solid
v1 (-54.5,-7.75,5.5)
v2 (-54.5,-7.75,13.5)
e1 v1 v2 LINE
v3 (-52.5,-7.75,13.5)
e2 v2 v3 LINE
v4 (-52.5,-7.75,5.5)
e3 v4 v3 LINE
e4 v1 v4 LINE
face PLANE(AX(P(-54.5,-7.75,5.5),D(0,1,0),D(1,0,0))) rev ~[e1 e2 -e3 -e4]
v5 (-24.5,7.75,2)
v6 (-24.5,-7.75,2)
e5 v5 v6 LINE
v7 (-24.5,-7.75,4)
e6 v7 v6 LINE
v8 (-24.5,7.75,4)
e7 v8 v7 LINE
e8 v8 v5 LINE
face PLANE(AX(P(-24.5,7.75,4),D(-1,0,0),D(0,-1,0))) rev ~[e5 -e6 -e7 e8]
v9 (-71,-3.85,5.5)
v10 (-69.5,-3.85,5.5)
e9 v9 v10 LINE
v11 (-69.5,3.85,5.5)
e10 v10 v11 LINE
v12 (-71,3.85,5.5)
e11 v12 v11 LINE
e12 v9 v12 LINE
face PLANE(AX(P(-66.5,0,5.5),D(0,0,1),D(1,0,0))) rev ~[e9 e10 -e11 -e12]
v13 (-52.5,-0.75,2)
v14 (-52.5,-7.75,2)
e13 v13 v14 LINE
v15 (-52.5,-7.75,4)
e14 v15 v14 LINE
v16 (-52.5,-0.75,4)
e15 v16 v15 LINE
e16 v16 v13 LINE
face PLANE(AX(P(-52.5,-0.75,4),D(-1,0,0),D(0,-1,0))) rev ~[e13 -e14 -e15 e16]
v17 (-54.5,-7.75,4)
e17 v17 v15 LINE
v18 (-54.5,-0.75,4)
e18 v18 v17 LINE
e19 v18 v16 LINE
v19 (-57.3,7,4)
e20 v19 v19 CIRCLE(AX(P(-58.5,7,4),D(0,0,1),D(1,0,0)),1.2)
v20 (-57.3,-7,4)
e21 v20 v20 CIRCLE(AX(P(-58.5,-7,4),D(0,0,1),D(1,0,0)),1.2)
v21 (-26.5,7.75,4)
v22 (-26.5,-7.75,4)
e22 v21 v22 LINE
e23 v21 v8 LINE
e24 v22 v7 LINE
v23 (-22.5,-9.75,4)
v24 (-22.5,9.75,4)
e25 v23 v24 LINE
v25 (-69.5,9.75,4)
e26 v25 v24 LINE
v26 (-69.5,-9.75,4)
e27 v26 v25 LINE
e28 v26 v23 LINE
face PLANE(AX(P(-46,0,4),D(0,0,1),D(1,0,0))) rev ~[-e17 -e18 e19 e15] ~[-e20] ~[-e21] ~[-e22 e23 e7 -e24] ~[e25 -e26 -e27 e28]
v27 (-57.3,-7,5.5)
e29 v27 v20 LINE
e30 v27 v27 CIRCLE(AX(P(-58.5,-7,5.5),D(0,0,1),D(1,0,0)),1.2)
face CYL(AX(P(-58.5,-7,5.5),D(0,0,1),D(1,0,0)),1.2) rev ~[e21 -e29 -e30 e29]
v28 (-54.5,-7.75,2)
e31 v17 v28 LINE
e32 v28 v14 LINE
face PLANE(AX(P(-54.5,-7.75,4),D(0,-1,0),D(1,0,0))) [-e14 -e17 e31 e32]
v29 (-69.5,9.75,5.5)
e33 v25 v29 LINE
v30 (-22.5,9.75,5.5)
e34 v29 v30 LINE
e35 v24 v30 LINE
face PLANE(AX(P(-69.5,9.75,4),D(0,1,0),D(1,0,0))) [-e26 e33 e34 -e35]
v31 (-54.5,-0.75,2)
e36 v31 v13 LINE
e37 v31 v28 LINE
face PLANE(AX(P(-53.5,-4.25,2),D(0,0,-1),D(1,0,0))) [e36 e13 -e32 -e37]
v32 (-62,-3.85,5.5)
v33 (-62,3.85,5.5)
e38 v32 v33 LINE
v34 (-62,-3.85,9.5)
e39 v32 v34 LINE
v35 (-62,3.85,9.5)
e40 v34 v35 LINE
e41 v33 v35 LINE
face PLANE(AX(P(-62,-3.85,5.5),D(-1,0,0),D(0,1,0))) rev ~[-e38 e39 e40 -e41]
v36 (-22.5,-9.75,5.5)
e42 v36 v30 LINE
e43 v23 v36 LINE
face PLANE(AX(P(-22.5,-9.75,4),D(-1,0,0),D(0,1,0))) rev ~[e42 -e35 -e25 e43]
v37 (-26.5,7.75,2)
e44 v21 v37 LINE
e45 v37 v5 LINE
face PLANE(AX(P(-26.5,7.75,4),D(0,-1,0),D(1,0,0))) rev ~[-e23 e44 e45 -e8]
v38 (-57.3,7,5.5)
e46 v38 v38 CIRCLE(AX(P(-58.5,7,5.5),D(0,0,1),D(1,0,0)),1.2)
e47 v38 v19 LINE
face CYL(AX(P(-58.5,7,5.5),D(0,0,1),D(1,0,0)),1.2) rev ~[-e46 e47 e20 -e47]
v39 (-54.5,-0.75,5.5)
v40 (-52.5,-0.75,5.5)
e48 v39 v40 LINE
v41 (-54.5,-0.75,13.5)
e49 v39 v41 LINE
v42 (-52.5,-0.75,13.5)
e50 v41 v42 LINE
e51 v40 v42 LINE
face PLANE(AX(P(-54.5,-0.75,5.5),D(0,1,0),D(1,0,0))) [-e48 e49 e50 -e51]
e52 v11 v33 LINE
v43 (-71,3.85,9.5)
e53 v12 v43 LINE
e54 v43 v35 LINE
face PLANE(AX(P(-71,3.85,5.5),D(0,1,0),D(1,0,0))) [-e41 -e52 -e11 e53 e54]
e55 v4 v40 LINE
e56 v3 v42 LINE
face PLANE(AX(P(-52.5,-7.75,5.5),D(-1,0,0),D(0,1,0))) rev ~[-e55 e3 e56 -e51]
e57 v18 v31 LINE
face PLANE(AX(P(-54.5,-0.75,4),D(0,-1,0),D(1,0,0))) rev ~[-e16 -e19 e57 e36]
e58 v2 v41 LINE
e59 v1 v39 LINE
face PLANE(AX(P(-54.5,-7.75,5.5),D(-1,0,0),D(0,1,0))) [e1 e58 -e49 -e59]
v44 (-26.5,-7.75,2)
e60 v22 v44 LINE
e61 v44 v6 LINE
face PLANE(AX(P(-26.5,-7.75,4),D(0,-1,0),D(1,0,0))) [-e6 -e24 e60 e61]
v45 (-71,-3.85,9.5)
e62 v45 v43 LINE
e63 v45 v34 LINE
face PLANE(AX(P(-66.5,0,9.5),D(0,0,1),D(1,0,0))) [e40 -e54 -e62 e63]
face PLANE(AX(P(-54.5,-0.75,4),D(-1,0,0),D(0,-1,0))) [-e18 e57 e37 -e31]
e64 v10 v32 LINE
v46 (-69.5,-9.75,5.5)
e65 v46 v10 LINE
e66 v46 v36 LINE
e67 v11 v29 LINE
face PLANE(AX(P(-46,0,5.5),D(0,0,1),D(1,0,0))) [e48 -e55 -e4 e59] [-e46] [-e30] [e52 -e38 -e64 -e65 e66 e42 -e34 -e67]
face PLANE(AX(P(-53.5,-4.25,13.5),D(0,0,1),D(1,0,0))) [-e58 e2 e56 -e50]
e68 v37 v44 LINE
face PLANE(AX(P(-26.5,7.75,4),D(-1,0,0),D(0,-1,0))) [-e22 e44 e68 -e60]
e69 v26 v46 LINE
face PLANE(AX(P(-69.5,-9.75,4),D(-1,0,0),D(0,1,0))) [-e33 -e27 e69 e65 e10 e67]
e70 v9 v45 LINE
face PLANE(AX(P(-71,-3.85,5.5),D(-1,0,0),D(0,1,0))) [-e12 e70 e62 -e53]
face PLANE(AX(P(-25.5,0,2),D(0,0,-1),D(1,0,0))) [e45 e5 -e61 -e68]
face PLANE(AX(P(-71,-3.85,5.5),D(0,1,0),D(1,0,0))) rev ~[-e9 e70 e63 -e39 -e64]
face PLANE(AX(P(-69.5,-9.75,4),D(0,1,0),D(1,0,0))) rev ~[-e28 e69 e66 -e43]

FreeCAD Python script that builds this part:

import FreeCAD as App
import Part
import Sketcher

V = App.Vector
Q = App.Units.Quantity

doc = App.newDocument("Part")
body = doc.addObject("PartDesign::Body", "Body")

sketch1 = body.newObject("Sketcher::SketchObject", "Sketch")
sketch1.AttachmentSupport = (doc.getObject("XY_Plane"), [""])
sketch1.MapMode = "FlatFace"
sketch1.addGeometry(Part.LineSegment(V(0, 19.5, 0), V(0, 0, 0)), False)
sketch1.addGeometry(Part.LineSegment(V(0, 0, 0), V(47, 0, 0)), False)
sketch1.addGeometry(Part.LineSegment(V(47, 0, 0), V(47, 19.5, 0)), False)
sketch1.addGeometry(Part.LineSegment(V(47, 19.5, 0), V(0, 19.5, 0)), False)
sketch1.addConstraint(Sketcher.Constraint("Coincident", 0, 2, 1, 1))
sketch1.addConstraint(Sketcher.Constraint("Coincident", 1, 2, 2, 1))
sketch1.addConstraint(Sketcher.Constraint("Coincident", 2, 2, 3, 1))
sketch1.addConstraint(Sketcher.Constraint("Coincident", 3, 2, 0, 1))
sketch1.addConstraint(Sketcher.Constraint("Vertical", 0))
sketch1.addConstraint(Sketcher.Constraint("Horizontal", 1))
sketch1.addConstraint(Sketcher.Constraint("Vertical", 2))
sketch1.addConstraint(Sketcher.Constraint("Horizontal", 3))
sketch1.addConstraint(Sketcher.Constraint("Coincident", 0, 2, -1, 1))
sketch1.addConstraint(Sketcher.Constraint("DistanceX", 1, 1, 1, 2, Q("47 mm")))
sketch1.addConstraint(Sketcher.Constraint("DistanceY", 0, 2, 0, 1, Q("19.5 mm")))
pad1 = body.newObject("PartDesign::Pad", "Pad")
pad1.Profile = sketch1
pad1.Length = 1.5

sketch2 = body.newObject("Sketcher::SketchObject", "Sketch001")
sketch2.AttachmentSupport = (doc.getObject("XY_Plane"), [""])
sketch2.MapMode = "FlatFace"
sketch2.AttachmentOffset = App.Placement(V(0, 0, 1.5), App.Rotation())
sketch2.addGeometry(Part.LineSegment(V(-1.5, 13.6, 0), V(-1.5, 5.9, 0)), False)
sketch2.addGeometry(Part.LineSegment(V(-1.5, 5.9, 0), V(7.5, 5.9, 0)), False)
sketch2.addGeometry(Part.LineSegment(V(7.5, 5.9, 0), V(7.5, 13.6, 0)), False)
sketch2.addGeometry(Part.LineSegment(V(7.5, 13.6, 0), V(-1.5, 13.6, 0)), False)
sketch2.addConstraint(Sketcher.Constraint("Coincident", 0, 2, 1, 1))
sketch2.addConstraint(Sketcher.Constraint("Coincident", 1, 2, 2, 1))
sketch2.addConstraint(Sketcher.Constraint("Coincident", 2, 2, 3, 1))
sketch2.addConstraint(Sketcher.Constraint("Coincident", 3, 2, 0, 1))
sketch2.addConstraint(Sketcher.Constraint("Vertical", 0))
sketch2.addConstraint(Sketcher.Constraint("Horizontal", 1))
sketch2.addConstraint(Sketcher.Constraint("Vertical", 2))
sketch2.addConstraint(Sketcher.Constraint("Horizontal", 3))
sketch2.addConstraint(Sketcher.Constraint("DistanceX", 1, 1, 1, 2, Q("9 mm")))
sketch2.addConstraint(Sketcher.Constraint("DistanceY", 0, 2, 0, 1, Q("7.7 mm")))
sketch2.addConstraint(Sketcher.Constraint("DistanceX", 0, 2, -1, 1, Q("1.5 mm")))
sketch2.addConstraint(Sketcher.Constraint("DistanceY", -1, 1, 0, 2, Q("5.9 mm")))
pad2 = body.newObject("PartDesign::Pad", "Pad001")
pad2.Profile = sketch2
pad2.Length = 4

sketch3 = body.newObject("Sketcher::SketchObject", "Sketch002")
sketch3.AttachmentSupport = (doc.getObject("XY_Plane"), [""])
sketch3.MapMode = "FlatFace"
sketch3.AttachmentOffset = App.Placement(V(0, 0, 1.5), App.Rotation())
sketch3.addGeometry(Part.Circle(V(11, 16.75, 0), V(0, 0, 1), 1.2), False)
sketch3.addGeometry(Part.Circle(V(11, 2.75, 0), V(0, 0, 1), 1.2), False)
sketch3.addConstraint(Sketcher.Constraint("Equal", 0, 1))
sketch3.addConstraint(Sketcher.Constraint("Vertical", 0, 3, 1, 3))
sketch3.addConstraint(Sketcher.Constraint("Diameter", 0, Q("2.4 mm")))
sketch3.addConstraint(Sketcher.Constraint("DistanceX", -1, 1, 0, 3, Q("11 mm")))
sketch3.addConstraint(Sketcher.Constraint("DistanceY", 1, 3, 0, 3, Q("14 mm")))
sketch3.addConstraint(Sketcher.Constraint("DistanceY", -1, 1, 0, 3, Q("16.75 mm")))
pocket1 = body.newObject("PartDesign::Pocket", "Pocket")
pocket1.Profile = sketch3
pocket1.Type = "ThroughAll"

sketch4 = body.newObject("Sketcher::SketchObject", "Sketch003")
sketch4.AttachmentSupport = (doc.getObject("XY_Plane"), [""])
sketch4.MapMode = "FlatFace"
sketch4.addGeometry(Part.LineSegment(V(43, 2, 0), V(43, 17.5, 0)), False)
sketch4.addGeometry(Part.LineSegment(V(43, 17.5, 0), V(45, 17.5, 0)), False)
sketch4.addGeometry(Part.LineSegment(V(45, 17.5, 0), V(45, 2, 0)), False)
sketch4.addGeometry(Part.LineSegment(V(45, 2, 0), V(43, 2, 0)), False)
sketch4.addGeometry(Part.LineSegment(V(15, 2, 0), V(15, 9, 0)), False)
sketch4.addGeometry(Part.LineSegment(V(15, 9, 0), V(17, 9, 0)), False)
sketch4.addGeometry(Part.LineSegment(V(17, 9, 0), V(17, 2, 0)), False)
sketch4.addGeometry(Part.LineSegment(V(17, 2, 0), V(15, 2, 0)), False)
sketch4.addConstraint(Sketcher.Constraint("Coincident", 0, 2, 1, 1))
sketch4.addConstraint(Sketcher.Constraint("Coincident", 1, 2, 2, 1))
sketch4.addConstraint(Sketcher.Constraint("Coincident", 2, 2, 3, 1))
sketch4.addConstraint(Sketcher.Constraint("Coincident", 3, 2, 0, 1))
sketch4.addConstraint(Sketcher.Constraint("Coincident", 4, 2, 5, 1))
sketch4.addConstraint(Sketcher.Constraint("Coincident", 5, 2, 6, 1))
sketch4.addConstraint(Sketcher.Constraint("Coincident", 6, 2, 7, 1))
sketch4.addConstraint(Sketcher.Constraint("Coincident", 7, 2, 4, 1))
sketch4.addConstraint(Sketcher.Constraint("Vertical", 0))
sketch4.addConstraint(Sketcher.Constraint("Horizontal", 1))
sketch4.addConstraint(Sketcher.Constraint("Vertical", 2))
sketch4.addConstraint(Sketcher.Constraint("Horizontal", 3))
sketch4.addConstraint(Sketcher.Constraint("Vertical", 4))
sketch4.addConstraint(Sketcher.Constraint("Horizontal", 5))
sketch4.addConstraint(Sketcher.Constraint("Vertical", 6))
sketch4.addConstraint(Sketcher.Constraint("Horizontal", 7))
sketch4.addConstraint(Sketcher.Constraint("Horizontal", 3, 2, 6, 2))
sketch4.addConstraint(Sketcher.Constraint("Equal", 3, 5))
sketch4.addConstraint(Sketcher.Constraint("DistanceX", 1, 1, 1, 2, Q("2 mm")))
sketch4.addConstraint(Sketcher.Constraint("DistanceY", 4, 1, 4, 2, Q("7 mm")))
sketch4.addConstraint(Sketcher.Constraint("DistanceY", 0, 1, 0, 2, Q("15.5 mm")))
sketch4.addConstraint(Sketcher.Constraint("DistanceX", -1, 1, 0, 2, Q("43 mm")))
sketch4.addConstraint(Sketcher.Constraint("DistanceY", -1, 1, 2, 2, Q("2 mm")))
sketch4.addConstraint(Sketcher.Constraint("DistanceX", -1, 1, 4, 2, Q("15 mm")))
pad3 = body.newObject("PartDesign::Pad", "Pad002")
pad3.Profile = sketch4
pad3.Length = 2
pad3.Reversed = True

sketch5 = body.newObject("Sketcher::SketchObject", "Sketch004")
sketch5.AttachmentSupport = (doc.getObject("XY_Plane"), [""])
sketch5.MapMode = "FlatFace"
sketch5.AttachmentOffset = App.Placement(V(0, 0, 1.5), App.Rotation())
sketch5.addGeometry(Part.LineSegment(V(15, 9, 0), V(15, 2, 0)), False)
sketch5.addGeometry(Part.LineSegment(V(15, 2, 0), V(17, 2, 0)), False)
sketch5.addGeometry(Part.LineSegment(V(17, 2, 0), V(17, 9, 0)), False)
sketch5.addGeometry(Part.LineSegment(V(17, 9, 0), V(15, 9, 0)), False)
sketch5.addConstraint(Sketcher.Constraint("Coincident", 0, 2, 1, 1))
sketch5.addConstraint(Sketcher.Constraint("Coincident", 1, 2, 2, 1))
sketch5.addConstraint(Sketcher.Constraint("Coincident", 2, 2, 3, 1))
sketch5.addConstraint(Sketcher.Constraint("Coincident", 3, 2, 0, 1))
sketch5.addConstraint(Sketcher.Constraint("Vertical", 0))
sketch5.addConstraint(Sketcher.Constraint("Horizontal", 1))
sketch5.addConstraint(Sketcher.Constraint("Vertical", 2))
sketch5.addConstraint(Sketcher.Constraint("Horizontal", 3))
sketch5.addConstraint(Sketcher.Constraint("DistanceX", 1, 1, 1, 2, Q("2 mm")))
sketch5.addConstraint(Sketcher.Constraint("DistanceY", 0, 2, 0, 1, Q("7 mm")))
sketch5.addConstraint(Sketcher.Constraint("DistanceX", -1, 1, 0, 2, Q("15 mm")))
sketch5.addConstraint(Sketcher.Constraint("DistanceY", -1, 1, 0, 2, Q("2 mm")))
pad4 = body.newObject("PartDesign::Pad", "Pad003")
pad4.Profile = sketch5
pad4.Length = 8
body2 = doc.addObject("PartDesign::Body", "Body001")
doc.recompute()

body.Placement = App.Placement(V(-69.5, -9.75, 4), App.Rotation(V(0, 0, 1), 0))
boolean = body2.newObject("PartDesign::Boolean", "Boolean")
boolean.Type = "Fuse"
boolean.addObjects([body])

doc.recompute()
